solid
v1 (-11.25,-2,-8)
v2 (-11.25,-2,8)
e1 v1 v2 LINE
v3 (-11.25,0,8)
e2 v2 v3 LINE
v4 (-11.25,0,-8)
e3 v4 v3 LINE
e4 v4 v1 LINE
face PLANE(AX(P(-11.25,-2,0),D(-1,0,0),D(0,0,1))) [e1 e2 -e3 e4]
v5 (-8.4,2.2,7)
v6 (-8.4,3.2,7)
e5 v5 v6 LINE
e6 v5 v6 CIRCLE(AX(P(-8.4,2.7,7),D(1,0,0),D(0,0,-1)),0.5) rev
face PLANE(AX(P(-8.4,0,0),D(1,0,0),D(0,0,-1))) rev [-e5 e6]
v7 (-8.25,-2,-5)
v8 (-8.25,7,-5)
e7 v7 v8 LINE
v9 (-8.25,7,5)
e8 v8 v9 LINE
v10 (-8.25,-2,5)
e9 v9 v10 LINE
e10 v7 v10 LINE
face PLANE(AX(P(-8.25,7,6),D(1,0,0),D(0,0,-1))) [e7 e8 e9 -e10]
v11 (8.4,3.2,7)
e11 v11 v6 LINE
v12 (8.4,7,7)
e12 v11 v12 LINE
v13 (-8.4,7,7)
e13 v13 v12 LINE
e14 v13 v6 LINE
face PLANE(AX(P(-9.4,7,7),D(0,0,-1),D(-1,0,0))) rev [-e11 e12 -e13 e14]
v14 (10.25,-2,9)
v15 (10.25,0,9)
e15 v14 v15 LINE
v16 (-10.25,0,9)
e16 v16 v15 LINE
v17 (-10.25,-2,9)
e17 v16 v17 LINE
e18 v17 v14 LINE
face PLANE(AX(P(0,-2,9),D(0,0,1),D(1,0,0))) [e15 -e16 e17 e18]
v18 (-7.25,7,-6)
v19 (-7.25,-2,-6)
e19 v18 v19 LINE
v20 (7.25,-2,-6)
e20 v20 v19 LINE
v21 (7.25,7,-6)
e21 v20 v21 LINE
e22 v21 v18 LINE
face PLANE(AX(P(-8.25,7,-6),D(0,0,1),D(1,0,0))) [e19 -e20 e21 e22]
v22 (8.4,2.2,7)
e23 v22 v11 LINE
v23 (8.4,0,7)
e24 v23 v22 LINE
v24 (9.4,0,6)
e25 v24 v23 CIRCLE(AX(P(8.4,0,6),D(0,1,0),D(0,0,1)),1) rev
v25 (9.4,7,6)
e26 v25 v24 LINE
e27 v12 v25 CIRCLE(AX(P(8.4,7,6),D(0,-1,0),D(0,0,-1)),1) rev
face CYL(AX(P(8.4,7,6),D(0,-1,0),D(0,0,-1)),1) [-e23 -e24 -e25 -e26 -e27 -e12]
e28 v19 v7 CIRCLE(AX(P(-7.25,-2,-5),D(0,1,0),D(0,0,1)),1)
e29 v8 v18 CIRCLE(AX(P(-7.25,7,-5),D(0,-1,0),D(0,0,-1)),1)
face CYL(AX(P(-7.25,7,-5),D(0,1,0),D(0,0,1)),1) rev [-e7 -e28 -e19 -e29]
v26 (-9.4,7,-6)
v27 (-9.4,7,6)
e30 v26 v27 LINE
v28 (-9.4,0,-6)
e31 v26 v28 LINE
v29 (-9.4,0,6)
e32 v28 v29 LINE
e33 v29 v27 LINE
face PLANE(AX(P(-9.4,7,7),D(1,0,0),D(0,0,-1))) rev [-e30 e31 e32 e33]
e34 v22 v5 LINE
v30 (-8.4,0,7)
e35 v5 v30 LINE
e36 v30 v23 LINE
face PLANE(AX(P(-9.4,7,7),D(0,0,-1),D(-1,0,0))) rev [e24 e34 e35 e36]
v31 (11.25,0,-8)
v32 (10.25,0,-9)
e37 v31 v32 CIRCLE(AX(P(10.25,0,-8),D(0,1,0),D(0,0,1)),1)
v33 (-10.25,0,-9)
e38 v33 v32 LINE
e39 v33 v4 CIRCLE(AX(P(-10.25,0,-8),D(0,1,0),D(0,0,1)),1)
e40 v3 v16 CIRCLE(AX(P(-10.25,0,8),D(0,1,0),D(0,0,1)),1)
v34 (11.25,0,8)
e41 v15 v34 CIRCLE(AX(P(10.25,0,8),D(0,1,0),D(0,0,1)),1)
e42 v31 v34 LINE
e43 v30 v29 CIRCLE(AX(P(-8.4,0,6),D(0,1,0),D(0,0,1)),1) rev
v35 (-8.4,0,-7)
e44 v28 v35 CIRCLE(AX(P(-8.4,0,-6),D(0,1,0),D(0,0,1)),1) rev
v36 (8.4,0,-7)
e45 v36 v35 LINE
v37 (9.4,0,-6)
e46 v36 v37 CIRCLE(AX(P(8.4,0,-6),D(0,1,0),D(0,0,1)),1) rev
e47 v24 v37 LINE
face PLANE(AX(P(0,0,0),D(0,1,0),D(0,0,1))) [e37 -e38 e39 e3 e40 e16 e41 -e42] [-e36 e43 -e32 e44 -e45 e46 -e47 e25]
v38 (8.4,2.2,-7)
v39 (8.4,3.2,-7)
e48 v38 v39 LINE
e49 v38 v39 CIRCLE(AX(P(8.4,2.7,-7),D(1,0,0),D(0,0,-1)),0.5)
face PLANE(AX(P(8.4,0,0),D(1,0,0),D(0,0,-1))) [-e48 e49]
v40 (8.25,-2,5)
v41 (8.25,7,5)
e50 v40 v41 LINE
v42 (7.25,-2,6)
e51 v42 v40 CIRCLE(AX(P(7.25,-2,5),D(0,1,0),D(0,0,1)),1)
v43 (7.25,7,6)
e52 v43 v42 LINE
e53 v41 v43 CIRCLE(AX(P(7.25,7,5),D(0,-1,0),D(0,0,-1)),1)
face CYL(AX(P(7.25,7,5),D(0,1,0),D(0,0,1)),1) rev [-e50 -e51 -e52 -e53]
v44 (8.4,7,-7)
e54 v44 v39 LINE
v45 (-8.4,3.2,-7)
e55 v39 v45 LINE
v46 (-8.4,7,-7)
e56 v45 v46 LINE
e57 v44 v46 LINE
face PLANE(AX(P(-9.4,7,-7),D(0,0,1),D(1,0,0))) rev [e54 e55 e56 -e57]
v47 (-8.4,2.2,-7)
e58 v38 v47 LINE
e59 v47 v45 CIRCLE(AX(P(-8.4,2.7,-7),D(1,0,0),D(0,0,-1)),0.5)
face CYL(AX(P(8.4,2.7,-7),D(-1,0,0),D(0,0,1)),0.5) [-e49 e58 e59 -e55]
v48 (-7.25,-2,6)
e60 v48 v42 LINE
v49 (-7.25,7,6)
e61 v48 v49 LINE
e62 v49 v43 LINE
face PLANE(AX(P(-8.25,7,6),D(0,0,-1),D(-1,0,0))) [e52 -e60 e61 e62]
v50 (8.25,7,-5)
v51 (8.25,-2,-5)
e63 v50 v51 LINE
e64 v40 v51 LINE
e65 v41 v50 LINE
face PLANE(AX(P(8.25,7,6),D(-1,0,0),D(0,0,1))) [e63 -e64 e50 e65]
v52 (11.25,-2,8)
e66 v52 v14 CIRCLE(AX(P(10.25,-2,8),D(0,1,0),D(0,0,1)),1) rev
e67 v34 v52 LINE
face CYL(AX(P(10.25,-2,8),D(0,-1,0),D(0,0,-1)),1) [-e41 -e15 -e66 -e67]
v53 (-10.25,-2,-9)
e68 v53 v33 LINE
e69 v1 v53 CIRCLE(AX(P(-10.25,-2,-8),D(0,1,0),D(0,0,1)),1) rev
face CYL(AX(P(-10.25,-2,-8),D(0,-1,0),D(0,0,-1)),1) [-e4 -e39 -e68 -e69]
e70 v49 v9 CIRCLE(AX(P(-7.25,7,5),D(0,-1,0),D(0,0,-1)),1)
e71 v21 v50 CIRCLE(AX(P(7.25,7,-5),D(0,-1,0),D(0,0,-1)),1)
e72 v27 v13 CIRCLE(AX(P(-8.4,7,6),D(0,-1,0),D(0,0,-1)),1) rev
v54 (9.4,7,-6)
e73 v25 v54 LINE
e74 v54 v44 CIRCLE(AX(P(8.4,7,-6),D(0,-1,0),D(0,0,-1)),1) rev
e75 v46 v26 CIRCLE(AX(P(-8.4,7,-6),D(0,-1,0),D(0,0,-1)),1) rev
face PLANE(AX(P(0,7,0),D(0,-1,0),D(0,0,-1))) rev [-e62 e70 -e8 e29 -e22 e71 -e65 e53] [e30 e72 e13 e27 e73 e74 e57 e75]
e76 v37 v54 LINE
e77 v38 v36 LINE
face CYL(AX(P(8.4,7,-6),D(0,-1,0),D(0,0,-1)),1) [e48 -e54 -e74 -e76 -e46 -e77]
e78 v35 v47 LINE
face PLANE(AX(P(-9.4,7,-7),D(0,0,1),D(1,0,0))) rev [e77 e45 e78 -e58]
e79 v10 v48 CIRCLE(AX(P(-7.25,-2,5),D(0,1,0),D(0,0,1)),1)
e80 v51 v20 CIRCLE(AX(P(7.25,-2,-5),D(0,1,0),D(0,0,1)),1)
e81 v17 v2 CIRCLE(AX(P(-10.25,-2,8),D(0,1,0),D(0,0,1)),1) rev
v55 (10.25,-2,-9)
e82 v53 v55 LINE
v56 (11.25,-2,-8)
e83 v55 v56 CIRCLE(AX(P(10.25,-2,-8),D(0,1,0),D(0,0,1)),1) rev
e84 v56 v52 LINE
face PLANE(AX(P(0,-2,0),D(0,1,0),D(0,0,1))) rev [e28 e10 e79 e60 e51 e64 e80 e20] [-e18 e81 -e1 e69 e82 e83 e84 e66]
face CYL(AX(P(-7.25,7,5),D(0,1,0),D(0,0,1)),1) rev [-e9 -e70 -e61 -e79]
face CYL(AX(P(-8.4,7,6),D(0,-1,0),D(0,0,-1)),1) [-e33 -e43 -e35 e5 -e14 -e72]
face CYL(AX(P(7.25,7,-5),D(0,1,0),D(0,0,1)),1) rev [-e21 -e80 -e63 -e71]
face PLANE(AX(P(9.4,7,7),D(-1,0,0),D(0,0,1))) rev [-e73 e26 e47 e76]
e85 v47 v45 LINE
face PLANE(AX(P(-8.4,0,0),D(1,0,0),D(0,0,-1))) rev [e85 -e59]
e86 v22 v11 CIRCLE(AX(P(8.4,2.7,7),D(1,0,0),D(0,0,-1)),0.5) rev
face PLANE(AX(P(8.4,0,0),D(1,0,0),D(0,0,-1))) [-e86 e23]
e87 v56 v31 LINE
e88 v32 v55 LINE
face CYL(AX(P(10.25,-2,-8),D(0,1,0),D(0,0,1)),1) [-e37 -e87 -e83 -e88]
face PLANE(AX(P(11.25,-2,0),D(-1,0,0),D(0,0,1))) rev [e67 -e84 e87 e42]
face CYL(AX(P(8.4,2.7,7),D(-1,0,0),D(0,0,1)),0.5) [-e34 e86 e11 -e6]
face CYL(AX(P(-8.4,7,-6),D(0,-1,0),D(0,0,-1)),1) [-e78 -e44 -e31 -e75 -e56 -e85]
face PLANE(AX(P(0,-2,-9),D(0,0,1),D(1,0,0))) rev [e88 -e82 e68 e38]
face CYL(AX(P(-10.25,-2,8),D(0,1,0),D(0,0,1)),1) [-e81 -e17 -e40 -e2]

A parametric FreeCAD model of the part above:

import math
import FreeCAD as App
import Part
import Sketcher
from FreeCAD import Vector


def edges_at(feature, points):
    """Names of the edges that pass closest to the given points."""
    edges = feature.Shape.Edges
    near = lambda p: min(range(len(edges)), key=lambda i: edges[i].distToShape(Part.Vertex(*p))[0])
    return sorted({f"Edge{near(p) + 1}" for p in points})

doc = App.newDocument("Part")
body = doc.addObject("PartDesign::Body", "Body")

# Sketch on XZ plane
sketch1 = body.newObject("Sketcher::SketchObject", "Sketch")
sketch1.AttachmentSupport = (doc.getObject("XZ_Plane"), [""])
sketch1.MapMode = "FlatFace"
sketch1.addGeometry([
    Part.LineSegment(Vector(-9.4, -7, 0), Vector(-9.4, 7, 0)),  # 0
    Part.LineSegment(Vector(-9.4, 7, 0), Vector(9.4, 7, 0)),  # 1
    Part.LineSegment(Vector(9.4, 7, 0), Vector(9.4, -7, 0)),  # 2
    Part.LineSegment(Vector(9.4, -7, 0), Vector(-9.4, -7, 0)),  # 3
    Part.LineSegment(Vector(8.25, 6, 0), Vector(-8.25, 6, 0)),  # 4
    Part.LineSegment(Vector(-8.25, 6, 0), Vector(-8.25, -6, 0)),  # 5
    Part.LineSegment(Vector(-8.25, -6, 0), Vector(8.25, -6, 0)),  # 6
    Part.LineSegment(Vector(8.25, -6, 0), Vector(8.25, 6, 0)),  # 7
], False)
sketch1.addConstraint([
    Sketcher.Constraint("Coincident", 0, 2, 1, 1),
    Sketcher.Constraint("Coincident", 1, 2, 2, 1),
    Sketcher.Constraint("Coincident", 2, 2, 3, 1),
    Sketcher.Constraint("Coincident", 3, 2, 0, 1),
    Sketcher.Constraint("Coincident", 4, 2, 5, 1),
    Sketcher.Constraint("Coincident", 5, 2, 6, 1),
    Sketcher.Constraint("Coincident", 6, 2, 7, 1),
    Sketcher.Constraint("Coincident", 7, 2, 4, 1),
    Sketcher.Constraint("Vertical", 0),
    Sketcher.Constraint("Horizontal", 1),
    Sketcher.Constraint("Vertical", 2),
    Sketcher.Constraint("Horizontal", 3),
    Sketcher.Constraint("Horizontal", 4),
    Sketcher.Constraint("Vertical", 5),
    Sketcher.Constraint("Horizontal", 6),
    Sketcher.Constraint("Vertical", 7),
    Sketcher.Constraint("Symmetric", 0, 2, 2, 2, -1, 1),
    Sketcher.Constraint("Symmetric", 4, 2, 6, 2, -1, 1),
    Sketcher.Constraint("DistanceY", 0, 1, 0, 2, 14.0),
    Sketcher.Constraint("DistanceY", 5, 2, 5, 1, 12.0),
    Sketcher.Constraint("DistanceX", 1, 1, 1, 2, 18.8),
    Sketcher.Constraint("DistanceX", 4, 2, 4, 1, 16.5),
])
pad1 = body.newObject("PartDesign::Pad", "Pad")
pad1.Profile = sketch1
pad1.Length = 7
pad1.Reversed = True

# Sketch on XZ plane
sketch2 = body.newObject("Sketcher::SketchObject", "Sketch001")
sketch2.AttachmentSupport = (doc.getObject("XZ_Plane"), [""])
sketch2.MapMode = "FlatFace"
sketch2.addGeometry([
    Part.LineSegment(Vector(-11.25, -9, 0), Vector(-11.25, 9, 0)),  # 0
    Part.LineSegment(Vector(-11.25, 9, 0), Vector(11.25, 9, 0)),  # 1
    Part.LineSegment(Vector(11.25, 9, 0), Vector(11.25, -9, 0)),  # 2
    Part.LineSegment(Vector(11.25, -9, 0), Vector(-11.25, -9, 0)),  # 3
    Part.LineSegment(Vector(8.25, 6, 0), Vector(-8.25, 6, 0)),  # 4
    Part.LineSegment(Vector(-8.25, 6, 0), Vector(-8.25, -6, 0)),  # 5
    Part.LineSegment(Vector(-8.25, -6, 0), Vector(8.25, -6, 0)),  # 6
    Part.LineSegment(Vector(8.25, -6, 0), Vector(8.25, 6, 0)),  # 7
], False)
sketch2.addConstraint([
    Sketcher.Constraint("Coincident", 0, 2, 1, 1),
    Sketcher.Constraint("Coincident", 1, 2, 2, 1),
    Sketcher.Constraint("Coincident", 2, 2, 3, 1),
    Sketcher.Constraint("Coincident", 3, 2, 0, 1),
    Sketcher.Constraint("Coincident", 4, 2, 5, 1),
    Sketcher.Constraint("Coincident", 5, 2, 6, 1),
    Sketcher.Constraint("Coincident", 6, 2, 7, 1),
    Sketcher.Constraint("Coincident", 7, 2, 4, 1),
    Sketcher.Constraint("Vertical", 0),
    Sketcher.Constraint("Horizontal", 1),
    Sketcher.Constraint("Vertical", 2),
    Sketcher.Constraint("Horizontal", 3),
    Sketcher.Constraint("Horizontal", 4),
    Sketcher.Constraint("Vertical", 5),
    Sketcher.Constraint("Horizontal", 6),
    Sketcher.Constraint("Vertical", 7),
    Sketcher.Constraint("Symmetric", 0, 2, 2, 2, -1, 1),
    Sketcher.Constraint("Symmetric", 4, 2, 6, 2, -1, 1),
    Sketcher.Constraint("DistanceY", 0, 1, 0, 2, 18.0),
    Sketcher.Constraint("DistanceY", 5, 2, 5, 1, 12.0),
    Sketcher.Constraint("DistanceX", 1, 1, 1, 2, 22.5),
    Sketcher.Constraint("DistanceX", 4, 2, 4, 1, 16.5),
])
pad2 = body.newObject("PartDesign::Pad", "Pad001")
pad2.Profile = sketch2
pad2.Length = 2
doc.recompute()

fillet = body.newObject("PartDesign::Fillet", "Fillet")
fillet.Base = (pad2, edges_at(pad2, [
    (8.25, 2.5, 6),
    (8.25, 2.5, -6),
    (-8.25, 2.5, -6),
    (-8.25, 2.5, 6),
    (11.25, -1, -9),
    (11.25, -1, 9),
    (-11.25, -1, 9),
    (-11.25, -1, -9),
    (9.4, 3.5, 7),
    (-9.4, 3.5, 7),
    (-9.4, 3.5, -7),
    (9.4, 3.5, -7),
]))
fillet.Radius = 1

# Sketch on YZ plane
sketch3 = body.newObject("Sketcher::SketchObject", "Sketch002")
sketch3.AttachmentSupport = (doc.getObject("YZ_Plane"), [""])
sketch3.MapMode = "FlatFace"
sketch3.AttachmentOffset = App.Placement(Vector(0, 0, -8.4), App.Rotation())
sketch3.addGeometry([
    Part.ArcOfCircle(Part.Circle(Vector(2.7, -7, 0), Vector(0, 0, 1), 0.5), math.radians(0), math.radians(180)),  # 0
    Part.ArcOfCircle(Part.Circle(Vector(2.7, -7, 0), Vector(0, 0, 1), 0.5), math.radians(180), math.radians(270)),  # 1
    Part.ArcOfCircle(Part.Circle(Vector(2.7, -7, 0), Vector(0, 0, 1), 0.5), math.radians(-90), math.radians(0)),  # 2
    Part.ArcOfCircle(Part.Circle(Vector(2.7, 7, 0), Vector(0, 0, 1), 0.5), math.radians(0), math.radians(180)),  # 3
    Part.ArcOfCircle(Part.Circle(Vector(2.7, 7, 0), Vector(0, 0, 1), 0.5), math.radians(180), math.radians(270)),  # 4
    Part.ArcOfCircle(Part.Circle(Vector(2.7, 7, 0), Vector(0, 0, 1), 0.5), math.radians(-90), math.radians(0)),  # 5
], False)
sketch3.addConstraint([
    Sketcher.Constraint("Tangent", 0, 2, 1, 1),
    Sketcher.Constraint("Tangent", 1, 2, 2, 1),
    Sketcher.Constraint("Tangent", 2, 2, 0, 1),
    Sketcher.Constraint("Tangent", 3, 2, 4, 1),
    Sketcher.Constraint("Tangent", 4, 2, 5, 1),
    Sketcher.Constraint("Tangent", 5, 2, 3, 1),
    Sketcher.Constraint("Equal", 2, 3),
    Sketcher.Constraint("Symmetric", 0, 3, 3, 3, -1),
    Sketcher.Constraint("Horizontal", 2, 3, 0, 2),
    Sketcher.Constraint("Horizontal", 0, 2, 2, 2),
    Sketcher.Constraint("Horizontal", 5, 3, 3, 2),
    Sketcher.Constraint("Horizontal", 3, 2, 5, 2),
    Sketcher.Constraint("Vertical", 5, 3, 1, 2),
    Sketcher.Constraint("Vertical", 1, 2, 4, 2),
    Sketcher.Constraint("Radius", 0, 0.5),
    Sketcher.Constraint("DistanceY", 0, 3, -1, 1, 7.0),
    Sketcher.Constraint("DistanceX", -1, 1, 0, 3, 2.7),
])
pad3 = body.newObject("PartDesign::Pad", "Pad002")
pad3.Profile = sketch3
pad3.Length = 16.8

doc.recompute()
